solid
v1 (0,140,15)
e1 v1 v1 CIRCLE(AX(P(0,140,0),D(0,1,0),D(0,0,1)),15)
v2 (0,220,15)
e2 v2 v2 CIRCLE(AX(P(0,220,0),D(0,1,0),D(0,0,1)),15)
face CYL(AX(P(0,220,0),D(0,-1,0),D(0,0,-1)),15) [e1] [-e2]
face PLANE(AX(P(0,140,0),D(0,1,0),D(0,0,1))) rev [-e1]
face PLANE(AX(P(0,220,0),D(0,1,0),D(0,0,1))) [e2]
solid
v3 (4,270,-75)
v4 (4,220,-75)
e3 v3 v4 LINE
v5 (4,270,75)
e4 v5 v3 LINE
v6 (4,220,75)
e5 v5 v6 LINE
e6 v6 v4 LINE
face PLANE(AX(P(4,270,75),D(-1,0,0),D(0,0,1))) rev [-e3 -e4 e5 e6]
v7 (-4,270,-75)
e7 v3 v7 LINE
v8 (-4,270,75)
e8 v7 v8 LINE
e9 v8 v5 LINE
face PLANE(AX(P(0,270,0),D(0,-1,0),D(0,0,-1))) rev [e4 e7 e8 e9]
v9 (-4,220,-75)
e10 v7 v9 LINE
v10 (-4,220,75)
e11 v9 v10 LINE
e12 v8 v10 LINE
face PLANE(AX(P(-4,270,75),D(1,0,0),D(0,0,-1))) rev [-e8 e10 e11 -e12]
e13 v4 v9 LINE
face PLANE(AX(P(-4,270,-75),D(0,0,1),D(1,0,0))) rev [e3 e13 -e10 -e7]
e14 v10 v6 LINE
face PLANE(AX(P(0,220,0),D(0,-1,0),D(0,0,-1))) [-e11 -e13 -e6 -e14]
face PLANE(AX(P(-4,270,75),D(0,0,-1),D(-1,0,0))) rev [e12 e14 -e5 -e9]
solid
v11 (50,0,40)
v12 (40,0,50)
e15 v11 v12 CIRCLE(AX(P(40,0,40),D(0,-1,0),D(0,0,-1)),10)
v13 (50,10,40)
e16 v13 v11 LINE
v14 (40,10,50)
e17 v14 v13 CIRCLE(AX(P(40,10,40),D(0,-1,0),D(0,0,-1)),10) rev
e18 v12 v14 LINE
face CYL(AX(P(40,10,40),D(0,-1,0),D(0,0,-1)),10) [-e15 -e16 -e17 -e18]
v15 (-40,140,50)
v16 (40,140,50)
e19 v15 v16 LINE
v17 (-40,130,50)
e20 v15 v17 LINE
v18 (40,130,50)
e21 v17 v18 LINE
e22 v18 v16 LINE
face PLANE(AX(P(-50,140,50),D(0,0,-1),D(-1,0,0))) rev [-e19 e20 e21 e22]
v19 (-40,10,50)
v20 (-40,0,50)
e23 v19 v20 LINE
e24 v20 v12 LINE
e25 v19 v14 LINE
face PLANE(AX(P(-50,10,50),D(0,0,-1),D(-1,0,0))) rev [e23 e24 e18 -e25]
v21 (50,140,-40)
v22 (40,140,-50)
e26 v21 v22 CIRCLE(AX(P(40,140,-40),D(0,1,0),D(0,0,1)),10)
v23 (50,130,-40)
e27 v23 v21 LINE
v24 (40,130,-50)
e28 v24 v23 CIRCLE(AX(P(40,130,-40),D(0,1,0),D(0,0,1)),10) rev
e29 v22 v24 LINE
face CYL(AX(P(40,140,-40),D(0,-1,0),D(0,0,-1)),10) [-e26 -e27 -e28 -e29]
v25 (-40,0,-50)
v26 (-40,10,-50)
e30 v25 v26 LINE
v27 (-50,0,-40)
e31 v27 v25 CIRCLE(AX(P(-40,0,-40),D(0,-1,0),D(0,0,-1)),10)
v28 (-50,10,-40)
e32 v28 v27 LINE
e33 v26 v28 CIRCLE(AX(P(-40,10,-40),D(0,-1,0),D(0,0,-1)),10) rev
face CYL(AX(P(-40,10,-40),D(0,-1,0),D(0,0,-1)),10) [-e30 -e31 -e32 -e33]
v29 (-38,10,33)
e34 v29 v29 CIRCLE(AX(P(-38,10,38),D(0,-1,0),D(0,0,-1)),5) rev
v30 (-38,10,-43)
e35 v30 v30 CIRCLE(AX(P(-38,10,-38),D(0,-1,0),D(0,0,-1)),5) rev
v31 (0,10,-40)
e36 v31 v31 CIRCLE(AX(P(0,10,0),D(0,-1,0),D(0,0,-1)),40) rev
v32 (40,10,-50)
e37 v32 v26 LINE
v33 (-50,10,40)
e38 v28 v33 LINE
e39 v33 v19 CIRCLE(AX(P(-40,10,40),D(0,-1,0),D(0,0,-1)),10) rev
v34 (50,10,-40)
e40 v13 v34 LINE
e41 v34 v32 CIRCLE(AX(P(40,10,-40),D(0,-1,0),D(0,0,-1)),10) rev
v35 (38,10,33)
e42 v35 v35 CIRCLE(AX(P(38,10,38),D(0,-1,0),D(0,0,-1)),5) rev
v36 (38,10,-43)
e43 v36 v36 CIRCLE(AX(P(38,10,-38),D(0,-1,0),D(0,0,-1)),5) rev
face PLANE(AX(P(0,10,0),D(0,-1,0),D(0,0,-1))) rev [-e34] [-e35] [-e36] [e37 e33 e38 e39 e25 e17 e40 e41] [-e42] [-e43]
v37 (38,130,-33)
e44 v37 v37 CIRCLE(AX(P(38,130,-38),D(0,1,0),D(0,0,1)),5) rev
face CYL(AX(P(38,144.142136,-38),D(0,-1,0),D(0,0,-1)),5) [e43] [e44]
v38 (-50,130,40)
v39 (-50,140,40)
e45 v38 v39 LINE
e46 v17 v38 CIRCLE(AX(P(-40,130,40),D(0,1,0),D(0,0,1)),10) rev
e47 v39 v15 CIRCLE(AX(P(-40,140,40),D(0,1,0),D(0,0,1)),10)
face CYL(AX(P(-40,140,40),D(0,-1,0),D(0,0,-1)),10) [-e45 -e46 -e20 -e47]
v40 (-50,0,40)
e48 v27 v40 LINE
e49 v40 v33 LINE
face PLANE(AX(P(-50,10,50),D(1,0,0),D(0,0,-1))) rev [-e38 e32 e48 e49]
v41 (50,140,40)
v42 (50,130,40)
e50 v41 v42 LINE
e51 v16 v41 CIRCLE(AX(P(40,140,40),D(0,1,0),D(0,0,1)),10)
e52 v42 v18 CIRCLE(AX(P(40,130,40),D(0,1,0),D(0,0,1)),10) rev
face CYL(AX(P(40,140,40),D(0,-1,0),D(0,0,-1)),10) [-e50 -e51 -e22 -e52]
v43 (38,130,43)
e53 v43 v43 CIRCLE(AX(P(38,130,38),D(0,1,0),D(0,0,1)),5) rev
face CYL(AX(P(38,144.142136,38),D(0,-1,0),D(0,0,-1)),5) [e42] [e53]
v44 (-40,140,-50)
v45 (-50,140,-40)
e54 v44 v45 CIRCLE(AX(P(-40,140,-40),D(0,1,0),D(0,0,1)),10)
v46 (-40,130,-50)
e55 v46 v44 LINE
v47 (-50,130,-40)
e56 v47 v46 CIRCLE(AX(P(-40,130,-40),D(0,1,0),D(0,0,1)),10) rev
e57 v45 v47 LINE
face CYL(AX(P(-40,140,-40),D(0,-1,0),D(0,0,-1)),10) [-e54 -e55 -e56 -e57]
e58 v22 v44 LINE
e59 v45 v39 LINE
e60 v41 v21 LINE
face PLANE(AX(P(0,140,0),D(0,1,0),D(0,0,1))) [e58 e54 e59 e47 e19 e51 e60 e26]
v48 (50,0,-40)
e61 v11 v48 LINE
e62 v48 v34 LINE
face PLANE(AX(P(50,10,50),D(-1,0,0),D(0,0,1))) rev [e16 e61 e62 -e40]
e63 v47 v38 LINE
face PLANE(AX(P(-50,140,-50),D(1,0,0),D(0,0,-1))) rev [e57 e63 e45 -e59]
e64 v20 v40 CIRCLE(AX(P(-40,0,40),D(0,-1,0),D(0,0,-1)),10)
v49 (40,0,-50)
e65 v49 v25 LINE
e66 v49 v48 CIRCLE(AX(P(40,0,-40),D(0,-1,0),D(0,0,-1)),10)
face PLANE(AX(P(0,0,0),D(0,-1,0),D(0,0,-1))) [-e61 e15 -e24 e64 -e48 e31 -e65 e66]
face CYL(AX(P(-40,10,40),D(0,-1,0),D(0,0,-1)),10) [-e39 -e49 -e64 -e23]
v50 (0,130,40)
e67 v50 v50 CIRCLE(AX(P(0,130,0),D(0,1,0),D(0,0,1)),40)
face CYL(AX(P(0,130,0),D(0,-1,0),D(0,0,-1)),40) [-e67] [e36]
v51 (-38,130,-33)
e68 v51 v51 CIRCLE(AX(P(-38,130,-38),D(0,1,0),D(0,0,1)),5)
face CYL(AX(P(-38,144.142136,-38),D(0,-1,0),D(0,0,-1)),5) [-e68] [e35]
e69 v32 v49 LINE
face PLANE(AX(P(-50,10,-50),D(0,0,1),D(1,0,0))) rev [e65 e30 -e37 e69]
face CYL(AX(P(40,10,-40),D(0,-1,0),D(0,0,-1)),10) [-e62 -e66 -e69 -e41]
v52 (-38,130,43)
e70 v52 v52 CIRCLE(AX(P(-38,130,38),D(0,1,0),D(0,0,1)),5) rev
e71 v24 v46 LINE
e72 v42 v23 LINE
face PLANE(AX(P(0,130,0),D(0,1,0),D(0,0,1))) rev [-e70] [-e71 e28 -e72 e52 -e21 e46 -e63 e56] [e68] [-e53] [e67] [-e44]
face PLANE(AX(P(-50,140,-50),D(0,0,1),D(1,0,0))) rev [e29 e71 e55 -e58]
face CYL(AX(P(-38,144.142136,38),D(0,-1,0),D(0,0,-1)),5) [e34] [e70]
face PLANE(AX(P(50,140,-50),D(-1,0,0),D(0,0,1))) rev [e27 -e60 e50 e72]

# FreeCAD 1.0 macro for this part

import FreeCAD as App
import Part
import Sketcher


def edges_at(feature, points):
    """Names of the edges that pass closest to the given points."""
    edges = feature.Shape.Edges
    near = lambda p: min(range(len(edges)), key=lambda i: edges[i].distToShape(Part.Vertex(*p))[0])
    return sorted({f"Edge{near(p) + 1}" for p in points})

doc = App.newDocument("Part")
body = doc.addObject("PartDesign::Body", "Body")

# Sketch on XZ plane
sketch1 = doc.addObject("Sketcher::SketchObject", "Sketch")
body.addObject(sketch1)
sketch1.AttachmentSupport = (doc.XZ_Plane, [""])
sketch1.MapMode = "FlatFace"
sketch1.addGeometry(Part.LineSegment(App.Vector(-50, -50, 0), App.Vector(-50, 50, 0)), False)
sketch1.addGeometry(Part.LineSegment(App.Vector(-50, 50, 0), App.Vector(50, 50, 0)), False)
sketch1.addGeometry(Part.LineSegment(App.Vector(50, 50, 0), App.Vector(50, -50, 0)), False)
sketch1.addGeometry(Part.LineSegment(App.Vector(50, -50, 0), App.Vector(-50, -50, 0)), False)
sketch1.addConstraint(Sketcher.Constraint("Coincident", 0, 2, 1, 1))
sketch1.addConstraint(Sketcher.Constraint("Coincident", 1, 2, 2, 1))
sketch1.addConstraint(Sketcher.Constraint("Coincident", 2, 2, 3, 1))
sketch1.addConstraint(Sketcher.Constraint("Coincident", 3, 2, 0, 1))
sketch1.addConstraint(Sketcher.Constraint("Vertical", 0))
sketch1.addConstraint(Sketcher.Constraint("Horizontal", 1))
sketch1.addConstraint(Sketcher.Constraint("Vertical", 2))
sketch1.addConstraint(Sketcher.Constraint("Horizontal", 3))
sketch1.addConstraint(Sketcher.Constraint("Symmetric", 0, 2, 2, 2, -1, 1))
sketch1.addConstraint(Sketcher.Constraint("Equal", 3, 0))
sketch1.addConstraint(Sketcher.Constraint("DistanceX", 1, 1, 1, 2, 100.0))
pad1 = doc.addObject("PartDesign::Pad", "Pad")
body.addObject(pad1)
pad1.Profile = sketch1
pad1.Length = 10
pad1.Reversed = True
body2 = doc.addObject("PartDesign::Body", "Body001")

# Sketch on XZ plane
sketch2 = doc.addObject("Sketcher::SketchObject", "Sketch001")
body2.addObject(sketch2)
sketch2.AttachmentSupport = (doc.getObject("XZ_Plane001"), [""])
sketch2.MapMode = "FlatFace"
sketch2.AttachmentOffset = App.Placement(App.Vector(0, 0, -10), App.Rotation())
sketch2.addGeometry(Part.Circle(App.Vector(0, 0, 0), App.Vector(0, 0, 1), 40), False)
sketch2.addConstraint(Sketcher.Constraint("Coincident", 0, 3, -1, 1))
sketch2.addConstraint(Sketcher.Constraint("Diameter", 0, 80.0))
pad2 = doc.addObject("PartDesign::Pad", "Pad001")
body2.addObject(pad2)
pad2.Profile = sketch2
pad2.Length = 120
pad2.Reversed = True
body3 = doc.addObject("PartDesign::Body", "Body002")

# Sketch on XZ plane
sketch3 = doc.addObject("Sketcher::SketchObject", "Sketch002")
body3.addObject(sketch3)
sketch3.AttachmentSupport = (doc.getObject("XZ_Plane002"), [""])
sketch3.MapMode = "FlatFace"
sketch3.AttachmentOffset = App.Placement(App.Vector(0, 0, -130), App.Rotation())
sketch3.addGeometry(Part.LineSegment(App.Vector(-50, -50, 0), App.Vector(-50, 50, 0)), False)
sketch3.addGeometry(Part.LineSegment(App.Vector(-50, 50, 0), App.Vector(50, 50, 0)), False)
sketch3.addGeometry(Part.LineSegment(App.Vector(50, 50, 0), App.Vector(50, -50, 0)), False)
sketch3.addGeometry(Part.LineSegment(App.Vector(50, -50, 0), App.Vector(-50, -50, 0)), False)
sketch3.addConstraint(Sketcher.Constraint("Coincident", 0, 2, 1, 1))
sketch3.addConstraint(Sketcher.Constraint("Coincident", 1, 2, 2, 1))
sketch3.addConstraint(Sketcher.Constraint("Coincident", 2, 2, 3, 1))
sketch3.addConstraint(Sketcher.Constraint("Coincident", 3, 2, 0, 1))
sketch3.addConstraint(Sketcher.Constraint("Vertical", 0))
sketch3.addConstraint(Sketcher.Constraint("Horizontal", 1))
sketch3.addConstraint(Sketcher.Constraint("Vertical", 2))
sketch3.addConstraint(Sketcher.Constraint("Horizontal", 3))
sketch3.addConstraint(Sketcher.Constraint("Symmetric", 0, 2, 2, 2, -1, 1))
sketch3.addConstraint(Sketcher.Constraint("Equal", 3, 0))
sketch3.addConstraint(Sketcher.Constraint("DistanceX", 1, 1, 1, 2, 100.0))
pad3 = doc.addObject("PartDesign::Pad", "Pad002")
body3.addObject(pad3)
pad3.Profile = sketch3
pad3.Length = 10
pad3.Reversed = True
body4 = doc.addObject("PartDesign::Body", "Body003")

# Sketch on XZ plane
sketch4 = doc.addObject("Sketcher::SketchObject", "Sketch003")
body4.addObject(sketch4)
sketch4.AttachmentSupport = (doc.getObject("XZ_Plane003"), [""])
sketch4.MapMode = "FlatFace"
sketch4.AttachmentOffset = App.Placement(App.Vector(0, 0, -140), App.Rotation())
sketch4.addGeometry(Part.Circle(App.Vector(0, 0, 0), App.Vector(0, 0, 1), 15), False)
sketch4.addConstraint(Sketcher.Constraint("Coincident", 0, 3, -1, 1))
sketch4.addConstraint(Sketcher.Constraint("Diameter", 0, 30.0))
pad4 = doc.addObject("PartDesign::Pad", "Pad003")
body4.addObject(pad4)
pad4.Profile = sketch4
pad4.Length = 80
pad4.Reversed = True
doc.recompute()

boolean = doc.addObject("PartDesign::Boolean", "Boolean")
body.addObject(boolean)
boolean.Type = "Fuse"
boolean.addObjects([body2])
doc.recompute()

boolean2 = doc.addObject("PartDesign::Boolean", "Boolean001")
body.addObject(boolean2)
boolean2.Type = "Fuse"
boolean2.addObjects([body3])

# Sketch on XZ plane
sketch5 = doc.addObject("Sketcher::SketchObject", "Sketch004")
body.addObject(sketch5)
sketch5.AttachmentSupport = (doc.XZ_Plane, [""])
sketch5.MapMode = "FlatFace"
sketch5.AttachmentOffset = App.Placement(App.Vector(0, 0, -10), App.Rotation())
sketch5.addGeometry(Part.Circle(App.Vector(-38, -38, 0), App.Vector(0, 0, 1), 5), False)
sketch5.addGeometry(Part.Circle(App.Vector(38, -38, 0), App.Vector(0, 0, 1), 5), False)
sketch5.addGeometry(Part.Circle(App.Vector(38, 38, 0), App.Vector(0, 0, 1), 5), False)
sketch5.addGeometry(Part.Circle(App.Vector(-38, 38, 0), App.Vector(0, 0, 1), 5), False)
sketch5.addConstraint(Sketcher.Constraint("Equal", 0, 1))
sketch5.addConstraint(Sketcher.Constraint("Equal", 1, 2))
sketch5.addConstraint(Sketcher.Constraint("Equal", 2, 3))
sketch5.addConstraint(Sketcher.Constraint("Symmetric", 0, 3, 2, 3, -1, 1))
sketch5.addConstraint(Sketcher.Constraint("Symmetric", 1, 3, 3, 3, -1, 1))
sketch5.addConstraint(Sketcher.Constraint("Symmetric", 0, 3, 1, 3, -2))
sketch5.addConstraint(Sketcher.Constraint("Diameter", 0, 10.0))
sketch5.addConstraint(Sketcher.Constraint("DistanceX", 0, 3, -1, 1, 38.0))
sketch5.addConstraint(Sketcher.Constraint("DistanceY", 0, 3, -1, 1, 38.0))
pad5 = doc.addObject("PartDesign::Pad", "Pad004")
body.addObject(pad5)
pad5.Profile = sketch5
pad5.Length = 120
pad5.Reversed = True
doc.recompute()

fillet = doc.addObject("PartDesign::Fillet", "Fillet")
body.addObject(fillet)
fillet.Base = (pad5, edges_at(pad5, [
    (-50, 135, -50),
    (-50, 135, 50),
    (50, 135, 50),
    (50, 135, -50),
    (50, 5, 50),
    (-50, 5, 50),
    (-50, 5, -50),
    (50, 5, -50),
]))
fillet.Radius = 10
body5 = doc.addObject("PartDesign::Body", "Body004")

# Sketch on XZ plane
sketch6 = doc.addObject("Sketcher::SketchObject", "Sketch005")
body5.addObject(sketch6)
sketch6.AttachmentSupport = (doc.getObject("XZ_Plane004"), [""])
sketch6.MapMode = "FlatFace"
sketch6.AttachmentOffset = App.Placement(App.Vector(0, 0, -220), App.Rotation())
sketch6.addGeometry(Part.LineSegment(App.Vector(-4, -75, 0), App.Vector(-4, 75, 0)), False)
sketch6.addGeometry(Part.LineSegment(App.Vector(-4, 75, 0), App.Vector(4, 75, 0)), False)
sketch6.addGeometry(Part.LineSegment(App.Vector(4, 75, 0), App.Vector(4, -75, 0)), False)
sketch6.addGeometry(Part.LineSegment(App.Vector(4, -75, 0), App.Vector(-4, -75, 0)), False)
sketch6.addConstraint(Sketcher.Constraint("Coincident", 0, 2, 1, 1))
sketch6.addConstraint(Sketcher.Constraint("Coincident", 1, 2, 2, 1))
sketch6.addConstraint(Sketcher.Constraint("Coincident", 2, 2, 3, 1))
sketch6.addConstraint(Sketcher.Constraint("Coincident", 3, 2, 0, 1))
sketch6.addConstraint(Sketcher.Constraint("Vertical", 0))
sketch6.addConstraint(Sketcher.Constraint("Horizontal", 1))
sketch6.addConstraint(Sketcher.Constraint("Vertical", 2))
sketch6.addConstraint(Sketcher.Constraint("Horizontal", 3))
sketch6.addConstraint(Sketcher.Constraint("Symmetric", 0, 2, 2, 2, -1, 1))
sketch6.addConstraint(Sketcher.Constraint("DistanceX", 1, 1, 1, 2, 8.0))
sketch6.addConstraint(Sketcher.Constraint("DistanceY", 0, 1, 0, 2, 150.0))
pad6 = doc.addObject("PartDesign::Pad", "Pad005")
body5.addObject(pad6)
pad6.Profile = sketch6
pad6.Length = 50
pad6.Reversed = True

doc.recompute()
